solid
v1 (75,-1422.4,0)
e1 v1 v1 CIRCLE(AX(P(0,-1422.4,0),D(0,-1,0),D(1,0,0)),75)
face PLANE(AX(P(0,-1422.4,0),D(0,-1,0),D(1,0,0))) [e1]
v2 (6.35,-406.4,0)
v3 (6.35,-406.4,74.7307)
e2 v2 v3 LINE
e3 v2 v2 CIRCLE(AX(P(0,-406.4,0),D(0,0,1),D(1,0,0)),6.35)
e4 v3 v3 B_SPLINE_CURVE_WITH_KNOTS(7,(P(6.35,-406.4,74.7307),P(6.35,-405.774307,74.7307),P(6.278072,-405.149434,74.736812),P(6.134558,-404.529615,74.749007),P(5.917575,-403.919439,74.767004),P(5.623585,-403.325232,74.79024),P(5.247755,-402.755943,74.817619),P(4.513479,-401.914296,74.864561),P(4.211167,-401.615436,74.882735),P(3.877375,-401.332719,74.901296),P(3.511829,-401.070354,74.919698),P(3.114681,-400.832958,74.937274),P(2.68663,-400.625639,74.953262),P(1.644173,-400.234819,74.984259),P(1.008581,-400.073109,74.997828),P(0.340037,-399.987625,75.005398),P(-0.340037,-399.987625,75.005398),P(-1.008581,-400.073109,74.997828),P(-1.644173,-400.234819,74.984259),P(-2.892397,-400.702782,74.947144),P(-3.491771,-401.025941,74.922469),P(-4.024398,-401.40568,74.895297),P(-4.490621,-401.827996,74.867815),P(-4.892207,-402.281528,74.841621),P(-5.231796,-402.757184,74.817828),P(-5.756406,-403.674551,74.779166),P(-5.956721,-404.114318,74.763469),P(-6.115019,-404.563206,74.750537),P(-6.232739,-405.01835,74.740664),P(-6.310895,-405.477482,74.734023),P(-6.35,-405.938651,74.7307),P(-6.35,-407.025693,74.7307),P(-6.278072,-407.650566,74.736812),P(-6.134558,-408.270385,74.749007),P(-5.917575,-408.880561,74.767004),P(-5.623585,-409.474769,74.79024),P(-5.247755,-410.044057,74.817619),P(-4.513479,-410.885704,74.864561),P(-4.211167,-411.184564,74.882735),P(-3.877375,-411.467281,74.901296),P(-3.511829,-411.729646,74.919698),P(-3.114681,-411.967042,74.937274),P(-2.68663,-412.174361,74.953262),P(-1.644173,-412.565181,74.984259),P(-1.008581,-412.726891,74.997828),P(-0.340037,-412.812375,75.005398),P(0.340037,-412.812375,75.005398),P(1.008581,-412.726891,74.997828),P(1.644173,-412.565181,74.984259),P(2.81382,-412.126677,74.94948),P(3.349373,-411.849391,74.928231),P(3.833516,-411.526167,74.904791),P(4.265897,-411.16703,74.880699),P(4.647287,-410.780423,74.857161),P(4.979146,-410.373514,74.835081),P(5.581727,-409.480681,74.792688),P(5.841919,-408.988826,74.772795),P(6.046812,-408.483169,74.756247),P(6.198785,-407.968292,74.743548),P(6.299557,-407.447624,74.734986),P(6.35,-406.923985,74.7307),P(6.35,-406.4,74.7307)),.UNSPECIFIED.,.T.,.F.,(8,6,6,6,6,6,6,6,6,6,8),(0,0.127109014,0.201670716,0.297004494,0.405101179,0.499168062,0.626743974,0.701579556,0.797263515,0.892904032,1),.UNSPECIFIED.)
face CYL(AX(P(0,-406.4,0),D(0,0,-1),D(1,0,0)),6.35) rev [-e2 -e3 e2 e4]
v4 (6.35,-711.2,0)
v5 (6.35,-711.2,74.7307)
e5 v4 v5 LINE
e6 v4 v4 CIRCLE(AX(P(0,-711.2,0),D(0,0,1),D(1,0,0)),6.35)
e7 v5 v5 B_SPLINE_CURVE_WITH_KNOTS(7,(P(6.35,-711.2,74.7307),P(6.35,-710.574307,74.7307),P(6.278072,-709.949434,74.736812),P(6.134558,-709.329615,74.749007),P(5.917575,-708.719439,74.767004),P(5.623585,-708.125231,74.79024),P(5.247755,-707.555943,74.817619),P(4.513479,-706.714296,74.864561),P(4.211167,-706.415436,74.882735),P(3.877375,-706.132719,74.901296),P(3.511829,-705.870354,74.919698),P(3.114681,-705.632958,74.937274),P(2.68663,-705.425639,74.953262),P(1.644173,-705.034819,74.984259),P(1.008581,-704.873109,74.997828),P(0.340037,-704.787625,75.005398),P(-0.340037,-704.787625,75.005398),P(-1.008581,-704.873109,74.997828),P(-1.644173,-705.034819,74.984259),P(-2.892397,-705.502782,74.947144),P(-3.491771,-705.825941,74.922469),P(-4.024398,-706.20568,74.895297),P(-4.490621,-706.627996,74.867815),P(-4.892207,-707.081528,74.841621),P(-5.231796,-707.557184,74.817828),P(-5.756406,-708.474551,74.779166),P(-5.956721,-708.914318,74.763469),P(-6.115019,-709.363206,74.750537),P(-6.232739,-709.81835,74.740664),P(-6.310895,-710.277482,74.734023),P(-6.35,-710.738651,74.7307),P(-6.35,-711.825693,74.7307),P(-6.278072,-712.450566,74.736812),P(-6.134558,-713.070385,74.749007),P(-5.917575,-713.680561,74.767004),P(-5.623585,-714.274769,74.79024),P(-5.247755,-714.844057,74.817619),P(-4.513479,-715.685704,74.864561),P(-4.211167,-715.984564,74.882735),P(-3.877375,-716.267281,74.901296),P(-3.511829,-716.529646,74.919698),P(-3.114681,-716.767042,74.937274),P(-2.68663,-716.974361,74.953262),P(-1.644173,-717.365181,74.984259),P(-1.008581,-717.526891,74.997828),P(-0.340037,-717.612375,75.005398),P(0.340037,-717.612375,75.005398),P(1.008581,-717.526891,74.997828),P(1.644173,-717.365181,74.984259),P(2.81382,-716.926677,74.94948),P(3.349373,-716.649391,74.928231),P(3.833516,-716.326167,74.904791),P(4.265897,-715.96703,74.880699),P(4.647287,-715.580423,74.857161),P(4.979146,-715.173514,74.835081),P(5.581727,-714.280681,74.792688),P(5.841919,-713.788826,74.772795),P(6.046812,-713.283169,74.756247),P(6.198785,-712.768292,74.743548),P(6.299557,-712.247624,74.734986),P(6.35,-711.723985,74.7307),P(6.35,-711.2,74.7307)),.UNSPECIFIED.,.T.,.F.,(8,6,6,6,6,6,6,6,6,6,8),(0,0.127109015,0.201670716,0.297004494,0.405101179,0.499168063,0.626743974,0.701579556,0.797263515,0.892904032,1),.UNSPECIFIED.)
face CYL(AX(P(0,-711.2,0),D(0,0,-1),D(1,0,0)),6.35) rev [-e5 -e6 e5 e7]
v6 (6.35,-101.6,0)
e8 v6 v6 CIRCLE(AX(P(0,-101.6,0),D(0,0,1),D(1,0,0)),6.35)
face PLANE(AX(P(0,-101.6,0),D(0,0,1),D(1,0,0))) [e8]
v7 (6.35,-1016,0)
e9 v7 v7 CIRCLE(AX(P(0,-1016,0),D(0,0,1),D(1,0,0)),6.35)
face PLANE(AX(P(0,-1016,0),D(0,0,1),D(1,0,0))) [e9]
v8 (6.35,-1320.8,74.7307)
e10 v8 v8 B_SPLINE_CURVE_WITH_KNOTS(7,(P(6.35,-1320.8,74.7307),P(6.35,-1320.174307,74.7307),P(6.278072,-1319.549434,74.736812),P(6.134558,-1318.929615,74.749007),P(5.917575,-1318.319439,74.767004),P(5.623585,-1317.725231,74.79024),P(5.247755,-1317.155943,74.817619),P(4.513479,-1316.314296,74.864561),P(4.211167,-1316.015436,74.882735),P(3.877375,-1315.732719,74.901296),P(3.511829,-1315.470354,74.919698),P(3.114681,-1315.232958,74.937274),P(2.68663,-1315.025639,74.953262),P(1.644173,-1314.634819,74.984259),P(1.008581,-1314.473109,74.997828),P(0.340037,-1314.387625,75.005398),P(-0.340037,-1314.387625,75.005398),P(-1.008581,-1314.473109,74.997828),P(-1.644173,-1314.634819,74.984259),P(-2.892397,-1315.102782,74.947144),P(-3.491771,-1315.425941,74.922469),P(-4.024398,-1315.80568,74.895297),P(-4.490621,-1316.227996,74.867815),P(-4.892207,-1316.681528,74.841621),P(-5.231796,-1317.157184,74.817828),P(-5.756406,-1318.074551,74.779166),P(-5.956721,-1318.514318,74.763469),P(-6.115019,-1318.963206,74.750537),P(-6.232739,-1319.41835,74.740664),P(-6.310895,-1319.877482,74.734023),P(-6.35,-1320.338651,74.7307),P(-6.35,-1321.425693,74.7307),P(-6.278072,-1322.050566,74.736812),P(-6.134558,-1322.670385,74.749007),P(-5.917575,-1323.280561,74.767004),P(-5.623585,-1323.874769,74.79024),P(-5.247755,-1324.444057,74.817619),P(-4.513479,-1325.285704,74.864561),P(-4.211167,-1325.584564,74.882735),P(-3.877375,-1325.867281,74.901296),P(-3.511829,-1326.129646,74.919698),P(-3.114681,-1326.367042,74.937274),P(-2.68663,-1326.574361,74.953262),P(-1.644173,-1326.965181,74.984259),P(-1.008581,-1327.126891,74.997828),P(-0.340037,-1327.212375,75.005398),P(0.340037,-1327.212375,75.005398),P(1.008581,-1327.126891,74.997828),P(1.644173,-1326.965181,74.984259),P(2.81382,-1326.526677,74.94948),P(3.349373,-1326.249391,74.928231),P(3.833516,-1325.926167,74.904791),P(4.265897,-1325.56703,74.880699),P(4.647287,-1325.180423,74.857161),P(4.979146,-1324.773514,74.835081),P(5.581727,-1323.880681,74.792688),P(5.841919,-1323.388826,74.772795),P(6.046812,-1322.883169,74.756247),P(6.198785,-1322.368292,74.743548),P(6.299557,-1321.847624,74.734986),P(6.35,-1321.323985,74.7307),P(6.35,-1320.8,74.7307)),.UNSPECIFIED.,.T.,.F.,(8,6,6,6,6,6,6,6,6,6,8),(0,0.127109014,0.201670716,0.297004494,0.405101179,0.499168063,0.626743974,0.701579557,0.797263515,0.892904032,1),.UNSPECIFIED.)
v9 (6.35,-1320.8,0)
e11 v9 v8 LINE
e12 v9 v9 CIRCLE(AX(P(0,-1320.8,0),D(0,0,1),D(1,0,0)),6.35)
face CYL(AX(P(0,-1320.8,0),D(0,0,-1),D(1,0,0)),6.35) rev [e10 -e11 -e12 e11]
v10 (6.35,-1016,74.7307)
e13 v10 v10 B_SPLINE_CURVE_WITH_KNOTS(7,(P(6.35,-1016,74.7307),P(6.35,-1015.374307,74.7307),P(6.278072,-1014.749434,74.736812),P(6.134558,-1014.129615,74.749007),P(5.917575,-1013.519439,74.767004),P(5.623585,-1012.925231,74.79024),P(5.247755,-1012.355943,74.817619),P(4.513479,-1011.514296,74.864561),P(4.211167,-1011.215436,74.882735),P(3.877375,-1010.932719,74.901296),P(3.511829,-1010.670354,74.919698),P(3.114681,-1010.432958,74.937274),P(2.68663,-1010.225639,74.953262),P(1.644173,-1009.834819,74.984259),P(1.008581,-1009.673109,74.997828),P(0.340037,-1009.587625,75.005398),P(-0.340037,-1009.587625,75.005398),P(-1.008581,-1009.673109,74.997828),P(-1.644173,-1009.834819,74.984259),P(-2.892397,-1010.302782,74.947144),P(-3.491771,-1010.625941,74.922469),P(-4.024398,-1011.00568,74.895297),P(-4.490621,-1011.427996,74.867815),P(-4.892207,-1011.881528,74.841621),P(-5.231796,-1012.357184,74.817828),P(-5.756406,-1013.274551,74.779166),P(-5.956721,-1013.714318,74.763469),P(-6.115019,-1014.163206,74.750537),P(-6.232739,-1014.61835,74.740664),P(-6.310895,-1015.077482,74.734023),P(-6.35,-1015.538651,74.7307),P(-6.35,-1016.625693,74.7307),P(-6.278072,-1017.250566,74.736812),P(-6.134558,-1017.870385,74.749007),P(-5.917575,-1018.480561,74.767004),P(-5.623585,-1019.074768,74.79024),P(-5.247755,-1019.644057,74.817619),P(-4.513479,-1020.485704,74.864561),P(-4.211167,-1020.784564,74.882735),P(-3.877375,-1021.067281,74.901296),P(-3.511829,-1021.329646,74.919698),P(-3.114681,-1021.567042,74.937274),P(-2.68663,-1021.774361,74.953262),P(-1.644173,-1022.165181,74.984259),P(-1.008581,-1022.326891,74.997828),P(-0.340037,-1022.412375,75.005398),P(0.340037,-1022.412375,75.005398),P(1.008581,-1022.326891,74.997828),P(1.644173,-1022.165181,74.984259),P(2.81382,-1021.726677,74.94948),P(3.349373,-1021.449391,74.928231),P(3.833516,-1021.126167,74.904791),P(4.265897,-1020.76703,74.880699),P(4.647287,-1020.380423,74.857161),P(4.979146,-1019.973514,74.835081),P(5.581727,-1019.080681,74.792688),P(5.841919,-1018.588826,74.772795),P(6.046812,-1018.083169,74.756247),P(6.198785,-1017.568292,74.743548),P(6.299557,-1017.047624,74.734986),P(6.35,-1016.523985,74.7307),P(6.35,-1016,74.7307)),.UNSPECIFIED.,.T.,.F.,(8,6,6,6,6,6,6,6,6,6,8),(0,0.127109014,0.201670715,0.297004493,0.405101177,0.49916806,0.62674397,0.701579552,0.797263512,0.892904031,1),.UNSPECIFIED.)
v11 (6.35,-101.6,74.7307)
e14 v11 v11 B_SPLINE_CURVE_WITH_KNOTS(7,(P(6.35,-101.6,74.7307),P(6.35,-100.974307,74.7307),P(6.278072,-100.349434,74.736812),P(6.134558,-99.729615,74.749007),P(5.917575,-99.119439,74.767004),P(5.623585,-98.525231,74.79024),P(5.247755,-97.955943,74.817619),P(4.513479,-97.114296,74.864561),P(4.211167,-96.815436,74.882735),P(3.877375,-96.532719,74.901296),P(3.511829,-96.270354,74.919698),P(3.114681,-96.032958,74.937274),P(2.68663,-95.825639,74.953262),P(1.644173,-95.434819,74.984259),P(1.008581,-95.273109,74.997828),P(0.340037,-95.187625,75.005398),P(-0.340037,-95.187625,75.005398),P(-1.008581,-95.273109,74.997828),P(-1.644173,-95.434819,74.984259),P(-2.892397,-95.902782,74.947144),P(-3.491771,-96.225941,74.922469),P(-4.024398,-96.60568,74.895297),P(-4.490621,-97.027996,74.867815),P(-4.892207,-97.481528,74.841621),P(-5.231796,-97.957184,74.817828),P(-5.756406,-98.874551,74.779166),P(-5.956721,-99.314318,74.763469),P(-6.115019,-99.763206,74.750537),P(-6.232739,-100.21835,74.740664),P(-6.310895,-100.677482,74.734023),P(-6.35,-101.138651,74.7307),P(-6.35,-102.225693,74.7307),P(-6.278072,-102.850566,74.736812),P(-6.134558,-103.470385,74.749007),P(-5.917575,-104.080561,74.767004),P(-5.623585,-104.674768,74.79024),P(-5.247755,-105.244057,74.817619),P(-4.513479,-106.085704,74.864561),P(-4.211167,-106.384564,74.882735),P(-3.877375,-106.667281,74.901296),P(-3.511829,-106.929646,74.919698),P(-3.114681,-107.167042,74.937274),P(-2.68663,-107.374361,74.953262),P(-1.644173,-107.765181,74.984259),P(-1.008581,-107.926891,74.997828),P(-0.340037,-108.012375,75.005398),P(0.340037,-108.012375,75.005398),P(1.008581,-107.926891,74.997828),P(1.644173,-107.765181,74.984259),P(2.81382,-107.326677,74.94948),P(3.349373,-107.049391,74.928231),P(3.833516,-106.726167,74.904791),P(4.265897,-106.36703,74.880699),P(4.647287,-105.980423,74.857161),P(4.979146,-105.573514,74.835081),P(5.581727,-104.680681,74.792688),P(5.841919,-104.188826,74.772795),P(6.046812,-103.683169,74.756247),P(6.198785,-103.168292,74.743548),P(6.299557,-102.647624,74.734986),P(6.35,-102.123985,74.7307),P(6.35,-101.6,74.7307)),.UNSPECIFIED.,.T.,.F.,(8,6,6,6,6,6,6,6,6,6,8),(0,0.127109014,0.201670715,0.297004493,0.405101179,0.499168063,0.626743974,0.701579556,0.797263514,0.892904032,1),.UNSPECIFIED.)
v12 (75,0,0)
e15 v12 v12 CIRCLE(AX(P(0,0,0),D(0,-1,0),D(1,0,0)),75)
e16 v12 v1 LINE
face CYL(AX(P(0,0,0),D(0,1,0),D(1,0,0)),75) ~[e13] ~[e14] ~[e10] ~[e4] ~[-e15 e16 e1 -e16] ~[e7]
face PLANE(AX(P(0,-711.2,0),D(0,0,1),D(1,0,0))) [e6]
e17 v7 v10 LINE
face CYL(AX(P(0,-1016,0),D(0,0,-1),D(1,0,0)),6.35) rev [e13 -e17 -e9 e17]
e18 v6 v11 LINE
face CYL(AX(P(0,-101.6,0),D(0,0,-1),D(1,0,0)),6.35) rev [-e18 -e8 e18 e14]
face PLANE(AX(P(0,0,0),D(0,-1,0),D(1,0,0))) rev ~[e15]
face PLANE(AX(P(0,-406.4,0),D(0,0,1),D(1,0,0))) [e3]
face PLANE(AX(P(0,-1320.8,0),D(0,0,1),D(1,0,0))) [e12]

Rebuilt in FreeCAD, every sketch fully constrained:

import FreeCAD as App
import Part
import Sketcher
from FreeCAD import Vector
Q = App.Units.Quantity

doc = App.newDocument("Part")
params = doc.addObject("Spreadsheet::Sheet", "Params")
for row, (alias, value) in enumerate([
    ("pad1_length", "56 in"),
    ("sketch2_diameter", "0.5 in"),
    ("pocket1_length", "5 in"),
], start=1):
    params.set(f"A{row}", alias)
    params.set(f"B{row}", "=" + value)
    params.setAlias(f"B{row}", alias)

body = doc.addObject("PartDesign::Body", "Body")

sketch1 = body.newObject("Sketcher::SketchObject", "Sketch")
sketch1.AttachmentSupport = (doc.getObject("XZ_Plane"), [""])
sketch1.MapMode = "FlatFace"
sketch1.addGeometry(Part.Circle(Vector(0, 0, 0), Vector(0, 0, 1), 75), False)
sketch1.addConstraint([
    Sketcher.Constraint("Coincident", 0, 3, -1, 1),
    Sketcher.Constraint("Diameter", 0, Q("150 mm")),
])
pad1 = body.newObject("PartDesign::Pad", "Pad")
pad1.Profile = sketch1
pad1.setExpression("Length", "Params.pad1_length")

sketch2 = body.newObject("Sketcher::SketchObject", "Sketch001")
sketch2.AttachmentSupport = (doc.getObject("XY_Plane"), [""])
sketch2.MapMode = "FlatFace"
sketch2.addGeometry([
    Part.Circle(Vector(0, -711, 0), Vector(0, 0, 1), 6),
    Part.Circle(Vector(0, -406, 0), Vector(0, 0, 1), 6),
    Part.Circle(Vector(0, -1016, 0), Vector(0, 0, 1), 6),
    Part.Circle(Vector(0, -1321, 0), Vector(0, 0, 1), 6),
    Part.Circle(Vector(0, -102, 0), Vector(0, 0, 1), 6),
], False)
sketch2.addConstraint([
    Sketcher.Constraint("Equal", 0, 1),
    Sketcher.Constraint("Equal", 1, 2),
    Sketcher.Constraint("Equal", 2, 3),
    Sketcher.Constraint("Equal", 3, 4),
    Sketcher.Constraint("PointOnObject", 0, 3, -2),
    Sketcher.Constraint("PointOnObject", 1, 3, -2),
    Sketcher.Constraint("PointOnObject", 2, 3, -2),
    Sketcher.Constraint("PointOnObject", 3, 3, -2),
    Sketcher.Constraint("PointOnObject", 4, 3, -2),
    Sketcher.Constraint("Diameter", 0, Q("0.5 in")),
    Sketcher.Constraint("DistanceY", 0, 3, -1, 1, Q("28 in")),
    Sketcher.Constraint("DistanceY", 1, 3, -1, 1, Q("16 in")),
    Sketcher.Constraint("DistanceY", 2, 3, -1, 1, Q("40 in")),
    Sketcher.Constraint("DistanceY", 3, 3, -1, 1, Q("52 in")),
    Sketcher.Constraint("DistanceY", 4, 3, -1, 1, Q("4 in")),
])
sketch2.setExpression("Constraints[9]", "Params.sketch2_diameter")
pocket1 = body.newObject("PartDesign::Pocket", "Pocket")
pocket1.Profile = sketch2
pocket1.setExpression("Length", "Params.pocket1_length")
pocket1.Reversed = True

doc.recompute()
